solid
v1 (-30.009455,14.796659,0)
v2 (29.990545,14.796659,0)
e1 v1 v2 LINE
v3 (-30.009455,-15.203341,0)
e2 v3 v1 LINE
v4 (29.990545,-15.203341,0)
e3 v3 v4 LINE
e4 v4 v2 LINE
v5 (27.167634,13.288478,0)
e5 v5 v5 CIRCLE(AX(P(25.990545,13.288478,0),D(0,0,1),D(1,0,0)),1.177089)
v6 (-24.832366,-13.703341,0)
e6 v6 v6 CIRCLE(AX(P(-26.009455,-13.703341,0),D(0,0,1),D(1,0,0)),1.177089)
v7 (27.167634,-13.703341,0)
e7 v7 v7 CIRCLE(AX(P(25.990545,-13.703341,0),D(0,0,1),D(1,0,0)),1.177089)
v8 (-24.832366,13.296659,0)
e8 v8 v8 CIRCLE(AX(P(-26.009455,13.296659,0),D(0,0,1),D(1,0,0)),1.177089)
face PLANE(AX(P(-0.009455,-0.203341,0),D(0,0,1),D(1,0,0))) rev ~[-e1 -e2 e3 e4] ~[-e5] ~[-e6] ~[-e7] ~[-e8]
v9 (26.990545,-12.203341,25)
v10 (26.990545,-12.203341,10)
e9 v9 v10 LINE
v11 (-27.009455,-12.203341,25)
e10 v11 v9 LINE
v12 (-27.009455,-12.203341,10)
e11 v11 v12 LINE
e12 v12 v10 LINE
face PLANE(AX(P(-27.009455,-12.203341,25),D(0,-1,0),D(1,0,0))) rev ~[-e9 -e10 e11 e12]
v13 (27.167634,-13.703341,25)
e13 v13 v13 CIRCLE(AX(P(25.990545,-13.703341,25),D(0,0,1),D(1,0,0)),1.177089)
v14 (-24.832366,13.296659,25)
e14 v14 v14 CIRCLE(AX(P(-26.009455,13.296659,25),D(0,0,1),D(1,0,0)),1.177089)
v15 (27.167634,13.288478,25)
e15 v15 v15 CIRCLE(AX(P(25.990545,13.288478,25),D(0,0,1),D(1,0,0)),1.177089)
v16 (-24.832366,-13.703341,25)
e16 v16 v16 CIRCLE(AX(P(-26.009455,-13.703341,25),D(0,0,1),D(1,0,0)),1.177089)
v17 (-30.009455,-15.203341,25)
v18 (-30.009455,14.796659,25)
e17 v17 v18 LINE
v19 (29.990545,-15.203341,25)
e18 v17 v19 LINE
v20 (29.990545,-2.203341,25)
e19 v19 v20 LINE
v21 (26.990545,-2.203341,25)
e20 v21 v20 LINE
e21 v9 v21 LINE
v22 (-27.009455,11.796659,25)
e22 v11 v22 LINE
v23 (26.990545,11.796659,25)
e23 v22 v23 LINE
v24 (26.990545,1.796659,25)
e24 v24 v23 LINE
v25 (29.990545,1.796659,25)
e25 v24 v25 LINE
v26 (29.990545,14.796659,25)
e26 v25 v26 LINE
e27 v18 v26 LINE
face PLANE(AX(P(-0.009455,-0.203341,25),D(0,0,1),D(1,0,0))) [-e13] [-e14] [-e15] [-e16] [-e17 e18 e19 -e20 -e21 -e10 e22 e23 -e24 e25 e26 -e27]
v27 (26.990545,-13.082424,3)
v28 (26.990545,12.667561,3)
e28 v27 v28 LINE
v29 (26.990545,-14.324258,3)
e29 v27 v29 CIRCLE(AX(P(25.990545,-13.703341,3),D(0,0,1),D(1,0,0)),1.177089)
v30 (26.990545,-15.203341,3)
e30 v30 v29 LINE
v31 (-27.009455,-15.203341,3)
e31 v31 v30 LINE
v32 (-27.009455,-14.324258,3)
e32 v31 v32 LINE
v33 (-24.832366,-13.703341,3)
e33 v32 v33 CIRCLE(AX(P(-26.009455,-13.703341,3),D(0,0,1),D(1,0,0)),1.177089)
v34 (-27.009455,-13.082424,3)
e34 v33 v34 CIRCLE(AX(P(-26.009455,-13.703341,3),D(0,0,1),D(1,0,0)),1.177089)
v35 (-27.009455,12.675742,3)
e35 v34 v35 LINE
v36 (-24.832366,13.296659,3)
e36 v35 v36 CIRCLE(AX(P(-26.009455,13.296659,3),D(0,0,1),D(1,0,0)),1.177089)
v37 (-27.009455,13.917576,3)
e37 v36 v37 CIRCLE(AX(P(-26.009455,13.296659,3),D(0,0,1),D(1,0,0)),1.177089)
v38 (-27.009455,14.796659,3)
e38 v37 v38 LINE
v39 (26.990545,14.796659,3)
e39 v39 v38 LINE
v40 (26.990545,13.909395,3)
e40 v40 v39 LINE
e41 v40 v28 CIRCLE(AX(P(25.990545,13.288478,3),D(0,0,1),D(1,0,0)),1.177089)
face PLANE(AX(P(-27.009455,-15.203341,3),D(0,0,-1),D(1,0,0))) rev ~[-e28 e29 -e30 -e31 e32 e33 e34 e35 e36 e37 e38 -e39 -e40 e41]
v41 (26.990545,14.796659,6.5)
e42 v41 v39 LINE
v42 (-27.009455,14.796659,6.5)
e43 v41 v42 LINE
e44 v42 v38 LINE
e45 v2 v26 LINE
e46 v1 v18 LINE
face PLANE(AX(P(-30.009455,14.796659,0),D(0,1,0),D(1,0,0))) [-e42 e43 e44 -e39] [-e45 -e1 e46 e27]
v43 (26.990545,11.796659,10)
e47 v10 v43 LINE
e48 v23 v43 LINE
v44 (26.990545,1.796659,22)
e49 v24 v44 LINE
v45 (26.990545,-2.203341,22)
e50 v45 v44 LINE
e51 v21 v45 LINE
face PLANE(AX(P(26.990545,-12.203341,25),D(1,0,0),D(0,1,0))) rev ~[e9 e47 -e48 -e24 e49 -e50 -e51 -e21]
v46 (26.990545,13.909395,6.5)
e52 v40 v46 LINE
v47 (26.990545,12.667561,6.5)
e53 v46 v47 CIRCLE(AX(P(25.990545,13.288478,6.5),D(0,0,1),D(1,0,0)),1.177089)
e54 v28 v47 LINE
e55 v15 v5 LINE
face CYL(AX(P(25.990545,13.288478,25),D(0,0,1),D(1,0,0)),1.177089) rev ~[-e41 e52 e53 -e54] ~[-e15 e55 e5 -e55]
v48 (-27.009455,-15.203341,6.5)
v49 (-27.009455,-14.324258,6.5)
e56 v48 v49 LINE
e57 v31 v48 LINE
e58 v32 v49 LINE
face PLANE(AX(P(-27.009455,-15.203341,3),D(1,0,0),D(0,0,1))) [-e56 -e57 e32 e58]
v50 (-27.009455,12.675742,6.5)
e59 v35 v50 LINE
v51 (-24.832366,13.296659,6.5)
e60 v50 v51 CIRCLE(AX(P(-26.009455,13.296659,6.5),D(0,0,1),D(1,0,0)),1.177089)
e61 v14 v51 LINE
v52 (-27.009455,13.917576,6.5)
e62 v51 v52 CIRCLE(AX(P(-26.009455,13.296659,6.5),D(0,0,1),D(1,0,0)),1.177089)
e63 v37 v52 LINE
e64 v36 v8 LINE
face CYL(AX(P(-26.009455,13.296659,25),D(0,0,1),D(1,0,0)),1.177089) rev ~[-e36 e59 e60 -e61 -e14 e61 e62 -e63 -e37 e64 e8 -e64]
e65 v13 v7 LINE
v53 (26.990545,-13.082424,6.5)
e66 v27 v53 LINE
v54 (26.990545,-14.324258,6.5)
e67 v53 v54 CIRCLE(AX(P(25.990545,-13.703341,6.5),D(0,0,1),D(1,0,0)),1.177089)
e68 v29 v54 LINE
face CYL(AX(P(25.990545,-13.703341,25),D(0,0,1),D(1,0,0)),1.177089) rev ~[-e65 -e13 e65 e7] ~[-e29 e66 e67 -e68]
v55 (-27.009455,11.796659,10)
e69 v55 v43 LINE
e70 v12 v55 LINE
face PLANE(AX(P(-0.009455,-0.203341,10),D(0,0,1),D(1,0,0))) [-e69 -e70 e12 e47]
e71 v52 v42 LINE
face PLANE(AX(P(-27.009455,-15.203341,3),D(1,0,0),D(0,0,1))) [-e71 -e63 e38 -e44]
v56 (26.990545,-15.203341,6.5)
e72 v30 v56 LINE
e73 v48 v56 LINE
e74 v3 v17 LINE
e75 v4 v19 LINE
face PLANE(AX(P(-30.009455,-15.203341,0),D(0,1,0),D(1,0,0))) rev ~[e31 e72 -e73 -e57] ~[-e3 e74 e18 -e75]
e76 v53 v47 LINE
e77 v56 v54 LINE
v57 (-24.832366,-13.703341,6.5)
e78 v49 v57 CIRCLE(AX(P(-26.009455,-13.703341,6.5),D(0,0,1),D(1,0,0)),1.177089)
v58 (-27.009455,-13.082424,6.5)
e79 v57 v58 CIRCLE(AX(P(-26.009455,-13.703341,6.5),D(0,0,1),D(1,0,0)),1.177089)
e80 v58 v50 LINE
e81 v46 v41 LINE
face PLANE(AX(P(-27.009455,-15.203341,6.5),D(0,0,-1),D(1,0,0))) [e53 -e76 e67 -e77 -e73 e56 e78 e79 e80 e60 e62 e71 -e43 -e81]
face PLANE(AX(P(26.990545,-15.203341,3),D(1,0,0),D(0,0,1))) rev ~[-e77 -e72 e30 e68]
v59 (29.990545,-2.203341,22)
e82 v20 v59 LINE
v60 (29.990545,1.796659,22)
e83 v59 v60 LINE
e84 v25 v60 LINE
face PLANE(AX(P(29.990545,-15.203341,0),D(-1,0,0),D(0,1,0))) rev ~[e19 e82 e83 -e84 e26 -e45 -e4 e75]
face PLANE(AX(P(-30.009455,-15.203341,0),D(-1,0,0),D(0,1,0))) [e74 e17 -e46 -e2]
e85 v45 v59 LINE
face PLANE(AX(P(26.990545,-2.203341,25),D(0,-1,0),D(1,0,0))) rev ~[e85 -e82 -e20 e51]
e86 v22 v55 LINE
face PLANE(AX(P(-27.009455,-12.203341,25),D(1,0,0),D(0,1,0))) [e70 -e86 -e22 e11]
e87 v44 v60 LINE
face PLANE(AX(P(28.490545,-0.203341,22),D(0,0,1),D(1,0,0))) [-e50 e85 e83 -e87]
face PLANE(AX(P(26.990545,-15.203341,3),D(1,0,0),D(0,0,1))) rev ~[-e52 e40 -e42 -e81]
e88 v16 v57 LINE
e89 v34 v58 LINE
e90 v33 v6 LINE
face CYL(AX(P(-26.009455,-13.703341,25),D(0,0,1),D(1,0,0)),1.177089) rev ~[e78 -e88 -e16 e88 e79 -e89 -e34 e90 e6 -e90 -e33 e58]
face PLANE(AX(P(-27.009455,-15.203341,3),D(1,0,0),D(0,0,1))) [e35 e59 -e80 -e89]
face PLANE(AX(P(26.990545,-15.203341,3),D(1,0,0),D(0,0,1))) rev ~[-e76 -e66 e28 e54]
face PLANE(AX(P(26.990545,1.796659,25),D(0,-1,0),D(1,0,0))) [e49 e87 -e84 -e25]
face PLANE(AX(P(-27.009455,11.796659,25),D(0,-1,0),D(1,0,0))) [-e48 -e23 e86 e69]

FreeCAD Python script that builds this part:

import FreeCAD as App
import Part
import Sketcher

V = App.Vector

doc = App.newDocument("Part")
body = doc.addObject("PartDesign::Body", "Body")

# Sketch on XY plane
sketch1 = body.newObject("Sketcher::SketchObject", "Sketch")
sketch1.AttachmentSupport = (doc.getObject("XY_Plane"), [""])
sketch1.MapMode = "FlatFace"
sketch1.addGeometry(Part.LineSegment(V(-30, 15, 0), V(-30, -15, 0)), False)
sketch1.addGeometry(Part.LineSegment(V(-30, -15, 0), V(30, -15, 0)), False)
sketch1.addGeometry(Part.LineSegment(V(30, -15, 0), V(30, 15, 0)), False)
sketch1.addGeometry(Part.LineSegment(V(30, 15, 0), V(-30, 15, 0)), False)
sketch1.addConstraint(Sketcher.Constraint("Coincident", 0, 2, 1, 1))
sketch1.addConstraint(Sketcher.Constraint("Coincident", 1, 2, 2, 1))
sketch1.addConstraint(Sketcher.Constraint("Coincident", 2, 2, 3, 1))
sketch1.addConstraint(Sketcher.Constraint("Coincident", 3, 2, 0, 1))
sketch1.addConstraint(Sketcher.Constraint("Vertical", 0))
sketch1.addConstraint(Sketcher.Constraint("Horizontal", 1))
sketch1.addConstraint(Sketcher.Constraint("Vertical", 2))
sketch1.addConstraint(Sketcher.Constraint("Horizontal", 3))
sketch1.addConstraint(Sketcher.Constraint("DistanceX", 1, 1, 1, 2, 60.0))
sketch1.addConstraint(Sketcher.Constraint("DistanceY", 0, 2, 0, 1, 30.0))
sketch1.addConstraint(Sketcher.Constraint("DistanceY", 0, 2, -1, 1, 15.203341))
sketch1.addConstraint(Sketcher.Constraint("DistanceX", 0, 2, -1, 1, 30.009455))
pad1 = body.newObject("PartDesign::Pad", "Pad")
pad1.Profile = sketch1
pad1.Length = 25

# Sketch on XZ plane
sketch2 = body.newObject("Sketcher::SketchObject", "Sketch001")
sketch2.AttachmentSupport = (doc.getObject("XZ_Plane"), [""])
sketch2.MapMode = "FlatFace"
sketch2.AttachmentOffset = App.Placement(V(0, 0, 15.203341), App.Rotation())
sketch2.addGeometry(Part.LineSegment(V(-27, 6.5, 0), V(-27, 3, 0)), False)
sketch2.addGeometry(Part.LineSegment(V(-27, 3, 0), V(27, 3, 0)), False)
sketch2.addGeometry(Part.LineSegment(V(27, 3, 0), V(27, 6.5, 0)), False)
sketch2.addGeometry(Part.LineSegment(V(27, 6.5, 0), V(-27, 6.5, 0)), False)
sketch2.addConstraint(Sketcher.Constraint("Coincident", 0, 2, 1, 1))
sketch2.addConstraint(Sketcher.Constraint("Coincident", 1, 2, 2, 1))
sketch2.addConstraint(Sketcher.Constraint("Coincident", 2, 2, 3, 1))
sketch2.addConstraint(Sketcher.Constraint("Coincident", 3, 2, 0, 1))
sketch2.addConstraint(Sketcher.Constraint("Vertical", 0))
sketch2.addConstraint(Sketcher.Constraint("Horizontal", 1))
sketch2.addConstraint(Sketcher.Constraint("Vertical", 2))
sketch2.addConstraint(Sketcher.Constraint("Horizontal", 3))
sketch2.addConstraint(Sketcher.Constraint("DistanceX", 1, 1, 1, 2, 54.0))
sketch2.addConstraint(Sketcher.Constraint("DistanceY", 0, 2, 0, 1, 3.5))
sketch2.addConstraint(Sketcher.Constraint("DistanceY", -1, 1, 0, 2, 3.0))
sketch2.addConstraint(Sketcher.Constraint("DistanceX", 0, 2, -1, 1, 27.009455))
pocket1 = body.newObject("PartDesign::Pocket", "Pocket")
pocket1.Profile = sketch2
pocket1.Type = "ThroughAll"

# Sketch on XY plane
sketch3 = body.newObject("Sketcher::SketchObject", "Sketch002")
sketch3.AttachmentSupport = (doc.getObject("XY_Plane"), [""])
sketch3.MapMode = "FlatFace"
sketch3.AttachmentOffset = App.Placement(V(0, 0, 25), App.Rotation())
sketch3.addGeometry(Part.LineSegment(V(-27, 12, 0), V(-27, -12, 0)), False)
sketch3.addGeometry(Part.LineSegment(V(-27, -12, 0), V(27, -12, 0)), False)
sketch3.addGeometry(Part.LineSegment(V(27, -12, 0), V(27, 12, 0)), False)
sketch3.addGeometry(Part.LineSegment(V(27, 12, 0), V(-27, 12, 0)), False)
sketch3.addConstraint(Sketcher.Constraint("Coincident", 0, 2, 1, 1))
sketch3.addConstraint(Sketcher.Constraint("Coincident", 1, 2, 2, 1))
sketch3.addConstraint(Sketcher.Constraint("Coincident", 2, 2, 3, 1))
sketch3.addConstraint(Sketcher.Constraint("Coincident", 3, 2, 0, 1))
sketch3.addConstraint(Sketcher.Constraint("Vertical", 0))
sketch3.addConstraint(Sketcher.Constraint("Horizontal", 1))
sketch3.addConstraint(Sketcher.Constraint("Vertical", 2))
sketch3.addConstraint(Sketcher.Constraint("Horizontal", 3))
sketch3.addConstraint(Sketcher.Constraint("DistanceX", 1, 1, 1, 2, 54.0))
sketch3.addConstraint(Sketcher.Constraint("DistanceY", 0, 2, 0, 1, 24.0))
sketch3.addConstraint(Sketcher.Constraint("DistanceY", 0, 2, -1, 1, 12.203341))
sketch3.addConstraint(Sketcher.Constraint("DistanceX", 0, 2, -1, 1, 27.009455))
pocket2 = body.newObject("PartDesign::Pocket", "Pocket001")
pocket2.Profile = sketch3
pocket2.Length = 15

# Sketch on XY plane
sketch4 = body.newObject("Sketcher::SketchObject", "Sketch003")
sketch4.AttachmentSupport = (doc.getObject("XY_Plane"), [""])
sketch4.MapMode = "FlatFace"
sketch4.AttachmentOffset = App.Placement(V(0, 0, 25), App.Rotation())
sketch4.addGeometry(Part.LineSegment(V(27, 1.8, 0), V(27, -2.2, 0)), False)
sketch4.addGeometry(Part.LineSegment(V(27, -2.2, 0), V(30, -2.2, 0)), False)
sketch4.addGeometry(Part.LineSegment(V(30, -2.2, 0), V(30, 1.8, 0)), False)
sketch4.addGeometry(Part.LineSegment(V(30, 1.8, 0), V(27, 1.8, 0)), False)
sketch4.addConstraint(Sketcher.Constraint("Coincident", 0, 2, 1, 1))
sketch4.addConstraint(Sketcher.Constraint("Coincident", 1, 2, 2, 1))
sketch4.addConstraint(Sketcher.Constraint("Coincident", 2, 2, 3, 1))
sketch4.addConstraint(Sketcher.Constraint("Coincident", 3, 2, 0, 1))
sketch4.addConstraint(Sketcher.Constraint("Vertical", 0))
sketch4.addConstraint(Sketcher.Constraint("Horizontal", 1))
sketch4.addConstraint(Sketcher.Constraint("Vertical", 2))
sketch4.addConstraint(Sketcher.Constraint("Horizontal", 3))
sketch4.addConstraint(Sketcher.Constraint("DistanceX", 1, 1, 1, 2, 3.0))
sketch4.addConstraint(Sketcher.Constraint("DistanceY", 0, 2, 0, 1, 4.0))
sketch4.addConstraint(Sketcher.Constraint("DistanceY", 0, 2, -1, 1, 2.203341))
sketch4.addConstraint(Sketcher.Constraint("DistanceX", -1, 1, 0, 2, 26.990545))
pocket3 = body.newObject("PartDesign::Pocket", "Pocket002")
pocket3.Profile = sketch4
pocket3.Length = 3

# Sketch on XY plane
sketch5 = body.newObject("Sketcher::SketchObject", "Sketch004")
sketch5.AttachmentSupport = (doc.getObject("XY_Plane"), [""])
sketch5.MapMode = "FlatFace"
sketch5.AttachmentOffset = App.Placement(V(0, 0, 25), App.Rotation())
sketch5.addGeometry(Part.Circle(V(26, 13.3, 0), V(0, 0, 1), 1.2), False)
sketch5.addGeometry(Part.Circle(V(-26, 13.3, 0), V(0, 0, 1), 1.2), False)
sketch5.addGeometry(Part.Circle(V(-26, -13.7, 0), V(0, 0, 1), 1.2), False)
sketch5.addGeometry(Part.Circle(V(26, -13.7, 0), V(0, 0, 1), 1.2), False)
sketch5.addConstraint(Sketcher.Constraint("Equal", 0, 1))
sketch5.addConstraint(Sketcher.Constraint("Equal", 1, 2))
sketch5.addConstraint(Sketcher.Constraint("Equal", 2, 3))
sketch5.addConstraint(Sketcher.Constraint("Horizontal", 2, 3, 3, 3))
sketch5.addConstraint(Sketcher.Constraint("Vertical", 1, 3, 2, 3))
sketch5.addConstraint(Sketcher.Constraint("Vertical", 0, 3, 3, 3))
sketch5.addConstraint(Sketcher.Constraint("DistanceX", 1, 3, 0, 3, 52.0))
sketch5.addConstraint(Sketcher.Constraint("DistanceY", 2, 3, 1, 3, 27.0))
sketch5.addConstraint(Sketcher.Constraint("Diameter", 0, 2.354178))
sketch5.addConstraint(Sketcher.Constraint("DistanceY", -1, 1, 1, 3, 13.296659))
sketch5.addConstraint(Sketcher.Constraint("DistanceY", 0, 3, 1, 3, 0.008181))
sketch5.addConstraint(Sketcher.Constraint("DistanceX", -1, 1, 0, 3, 25.990545))
pocket4 = body.newObject("PartDesign::Pocket", "Pocket003")
pocket4.Profile = sketch5
pocket4.Type = "ThroughAll"

doc.recompute()
